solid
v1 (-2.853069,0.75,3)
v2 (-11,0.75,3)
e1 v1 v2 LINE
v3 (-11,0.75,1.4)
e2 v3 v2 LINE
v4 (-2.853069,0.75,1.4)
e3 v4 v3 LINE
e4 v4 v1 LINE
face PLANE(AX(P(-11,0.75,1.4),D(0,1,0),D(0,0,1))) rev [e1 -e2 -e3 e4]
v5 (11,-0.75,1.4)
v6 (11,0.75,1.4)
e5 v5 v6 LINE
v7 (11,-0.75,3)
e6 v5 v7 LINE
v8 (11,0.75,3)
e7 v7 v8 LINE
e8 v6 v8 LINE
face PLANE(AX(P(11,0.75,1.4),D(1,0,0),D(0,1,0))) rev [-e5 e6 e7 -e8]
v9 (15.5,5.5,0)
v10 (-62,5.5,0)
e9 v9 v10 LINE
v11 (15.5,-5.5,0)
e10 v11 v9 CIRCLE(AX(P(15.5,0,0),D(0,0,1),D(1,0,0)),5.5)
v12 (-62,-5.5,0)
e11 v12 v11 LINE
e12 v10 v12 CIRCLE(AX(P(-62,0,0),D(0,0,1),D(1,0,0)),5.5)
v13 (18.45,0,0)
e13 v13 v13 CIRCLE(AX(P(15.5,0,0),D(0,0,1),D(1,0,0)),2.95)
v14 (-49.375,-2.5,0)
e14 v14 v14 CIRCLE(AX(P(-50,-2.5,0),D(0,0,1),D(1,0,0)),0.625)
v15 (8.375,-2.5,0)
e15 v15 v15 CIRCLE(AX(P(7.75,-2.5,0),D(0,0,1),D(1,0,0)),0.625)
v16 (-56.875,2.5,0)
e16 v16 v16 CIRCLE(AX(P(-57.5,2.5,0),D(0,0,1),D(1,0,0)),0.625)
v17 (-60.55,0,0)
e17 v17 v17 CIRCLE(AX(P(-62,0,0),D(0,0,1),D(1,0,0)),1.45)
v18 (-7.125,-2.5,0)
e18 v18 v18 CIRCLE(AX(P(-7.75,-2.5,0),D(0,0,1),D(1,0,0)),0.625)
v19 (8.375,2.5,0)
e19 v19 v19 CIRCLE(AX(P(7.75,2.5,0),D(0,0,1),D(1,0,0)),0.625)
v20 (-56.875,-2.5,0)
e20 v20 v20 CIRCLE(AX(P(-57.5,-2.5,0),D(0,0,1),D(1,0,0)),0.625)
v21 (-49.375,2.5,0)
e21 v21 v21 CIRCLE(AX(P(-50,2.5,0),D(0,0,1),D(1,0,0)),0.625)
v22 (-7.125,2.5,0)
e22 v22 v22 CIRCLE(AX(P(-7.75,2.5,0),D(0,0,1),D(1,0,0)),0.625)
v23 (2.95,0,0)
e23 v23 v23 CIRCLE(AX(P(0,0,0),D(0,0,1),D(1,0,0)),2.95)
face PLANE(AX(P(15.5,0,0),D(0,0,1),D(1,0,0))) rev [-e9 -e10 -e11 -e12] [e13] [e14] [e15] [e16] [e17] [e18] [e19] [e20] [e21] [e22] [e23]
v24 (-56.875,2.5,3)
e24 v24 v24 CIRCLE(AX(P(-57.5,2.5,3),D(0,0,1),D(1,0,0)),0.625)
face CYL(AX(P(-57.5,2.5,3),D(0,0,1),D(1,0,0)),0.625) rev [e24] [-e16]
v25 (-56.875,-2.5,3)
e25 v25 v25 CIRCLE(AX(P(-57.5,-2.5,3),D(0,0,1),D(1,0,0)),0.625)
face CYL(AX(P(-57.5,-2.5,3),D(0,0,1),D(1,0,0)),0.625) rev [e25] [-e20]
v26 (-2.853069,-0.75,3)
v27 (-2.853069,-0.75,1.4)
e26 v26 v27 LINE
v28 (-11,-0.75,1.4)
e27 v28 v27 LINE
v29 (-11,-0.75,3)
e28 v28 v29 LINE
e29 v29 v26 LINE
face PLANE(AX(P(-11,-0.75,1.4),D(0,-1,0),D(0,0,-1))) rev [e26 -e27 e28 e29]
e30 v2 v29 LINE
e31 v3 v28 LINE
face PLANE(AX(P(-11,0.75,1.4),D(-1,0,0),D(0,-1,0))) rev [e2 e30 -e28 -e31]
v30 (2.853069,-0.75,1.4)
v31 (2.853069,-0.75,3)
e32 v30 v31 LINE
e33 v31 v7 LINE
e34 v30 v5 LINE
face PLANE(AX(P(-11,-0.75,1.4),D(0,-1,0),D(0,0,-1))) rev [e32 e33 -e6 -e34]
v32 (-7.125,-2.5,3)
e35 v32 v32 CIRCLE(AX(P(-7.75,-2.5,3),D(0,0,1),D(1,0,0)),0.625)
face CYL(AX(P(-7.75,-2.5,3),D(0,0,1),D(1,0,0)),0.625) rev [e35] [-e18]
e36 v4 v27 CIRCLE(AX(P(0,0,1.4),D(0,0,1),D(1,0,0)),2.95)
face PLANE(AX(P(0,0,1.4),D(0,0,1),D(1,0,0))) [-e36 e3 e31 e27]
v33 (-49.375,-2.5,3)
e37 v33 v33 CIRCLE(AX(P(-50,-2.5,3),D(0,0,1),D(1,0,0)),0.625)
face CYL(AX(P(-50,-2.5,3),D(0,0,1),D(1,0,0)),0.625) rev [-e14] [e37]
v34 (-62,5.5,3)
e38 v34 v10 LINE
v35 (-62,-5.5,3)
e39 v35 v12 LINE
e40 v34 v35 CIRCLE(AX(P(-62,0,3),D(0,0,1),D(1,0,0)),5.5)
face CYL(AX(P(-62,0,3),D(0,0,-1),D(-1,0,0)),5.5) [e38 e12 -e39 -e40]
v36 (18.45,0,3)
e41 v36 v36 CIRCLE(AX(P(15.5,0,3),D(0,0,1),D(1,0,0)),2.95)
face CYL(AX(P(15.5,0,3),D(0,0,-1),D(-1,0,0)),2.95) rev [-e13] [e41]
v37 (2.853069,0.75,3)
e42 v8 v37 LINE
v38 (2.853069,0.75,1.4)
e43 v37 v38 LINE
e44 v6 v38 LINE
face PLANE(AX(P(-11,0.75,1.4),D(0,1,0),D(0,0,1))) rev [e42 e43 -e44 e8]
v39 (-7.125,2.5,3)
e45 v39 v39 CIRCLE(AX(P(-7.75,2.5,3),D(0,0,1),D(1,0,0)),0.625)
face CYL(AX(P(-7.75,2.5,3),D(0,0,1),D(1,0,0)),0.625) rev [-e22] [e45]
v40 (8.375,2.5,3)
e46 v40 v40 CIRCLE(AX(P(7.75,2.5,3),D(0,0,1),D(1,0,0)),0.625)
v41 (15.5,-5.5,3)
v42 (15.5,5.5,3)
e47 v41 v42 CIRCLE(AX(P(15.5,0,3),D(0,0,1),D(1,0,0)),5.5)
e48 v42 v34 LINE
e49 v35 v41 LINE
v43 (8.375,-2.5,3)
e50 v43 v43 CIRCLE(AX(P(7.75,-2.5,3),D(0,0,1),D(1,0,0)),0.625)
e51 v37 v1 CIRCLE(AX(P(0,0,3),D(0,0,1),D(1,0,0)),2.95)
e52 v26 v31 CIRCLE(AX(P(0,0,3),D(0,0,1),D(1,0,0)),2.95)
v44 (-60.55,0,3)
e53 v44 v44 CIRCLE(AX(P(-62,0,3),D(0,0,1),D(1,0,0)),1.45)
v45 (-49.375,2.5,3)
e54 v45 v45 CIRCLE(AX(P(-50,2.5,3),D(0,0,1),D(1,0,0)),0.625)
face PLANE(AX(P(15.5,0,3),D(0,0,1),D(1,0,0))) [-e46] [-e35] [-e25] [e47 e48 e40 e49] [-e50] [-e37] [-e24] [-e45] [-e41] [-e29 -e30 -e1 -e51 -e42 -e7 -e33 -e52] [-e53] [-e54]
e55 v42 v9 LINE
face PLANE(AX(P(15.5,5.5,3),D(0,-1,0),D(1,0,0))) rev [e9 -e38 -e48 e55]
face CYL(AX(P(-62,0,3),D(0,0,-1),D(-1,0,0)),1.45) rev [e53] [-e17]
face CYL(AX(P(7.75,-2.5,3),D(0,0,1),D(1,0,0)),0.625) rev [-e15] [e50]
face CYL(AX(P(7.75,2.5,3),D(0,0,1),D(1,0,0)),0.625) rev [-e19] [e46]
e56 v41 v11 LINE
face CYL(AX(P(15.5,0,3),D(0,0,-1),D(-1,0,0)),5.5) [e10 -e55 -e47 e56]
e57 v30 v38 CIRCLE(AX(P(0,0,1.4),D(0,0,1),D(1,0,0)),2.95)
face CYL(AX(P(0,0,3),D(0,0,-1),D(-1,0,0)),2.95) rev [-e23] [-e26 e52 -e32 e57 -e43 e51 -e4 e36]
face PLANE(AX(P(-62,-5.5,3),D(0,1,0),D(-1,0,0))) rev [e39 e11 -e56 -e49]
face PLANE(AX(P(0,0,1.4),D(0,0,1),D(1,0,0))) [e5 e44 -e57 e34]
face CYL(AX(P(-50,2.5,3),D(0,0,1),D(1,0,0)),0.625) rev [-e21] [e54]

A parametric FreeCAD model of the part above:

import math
import FreeCAD as App
import Part
import Sketcher
from FreeCAD import Vector


def add_polygon(sketch, points):
    """Adds a closed chain of lines whose ends are joined by coincident constraints."""
    first, n = sketch.GeometryCount, len(points)
    for a, b in zip(points, points[1:] + points[:1]):
        sketch.addGeometry(Part.LineSegment(App.Vector(*a, 0), App.Vector(*b, 0)), False)
    for i in range(n):
        sketch.addConstraint(Sketcher.Constraint("Coincident", first + i, 2, first + (i + 1) % n, 1))

doc = App.newDocument("Part")
body = doc.addObject("PartDesign::Body", "Body")

# Sketch on XY plane
sketch1 = body.newObject("Sketcher::SketchObject", "Sketch")
sketch1.AttachmentSupport = (doc.getObject("XY_Plane"), [""])
sketch1.MapMode = "FlatFace"
sketch1.addGeometry([
    Part.LineSegment(Vector(15.5, 5.5, 0), Vector(-62, 5.5, 0)),  # 0
    Part.ArcOfCircle(Part.Circle(Vector(-62, 0, 0), Vector(0, 0, 1), 5.5), math.radians(90), math.radians(270)),  # 1
    Part.LineSegment(Vector(-62, -5.5, 0), Vector(15.5, -5.5, 0)),  # 2
    Part.ArcOfCircle(Part.Circle(Vector(15.5, 0, 0), Vector(0, 0, 1), 5.5), math.radians(-90), math.radians(90)),  # 3
    Part.Circle(Vector(-62, 0, 0), Vector(0, 0, 1), 1.4),  # 4
    Part.Circle(Vector(0, 0, 0), Vector(0, 0, 1), 3),  # 5
    Part.Circle(Vector(15.5, 0, 0), Vector(0, 0, 1), 3),  # 6
], False)
sketch1.addConstraint([
    Sketcher.Constraint("Tangent", 0, 2, 1, 1),
    Sketcher.Constraint("Tangent", 1, 2, 2, 1),
    Sketcher.Constraint("Tangent", 2, 2, 3, 1),
    Sketcher.Constraint("Tangent", 3, 2, 0, 1),
    Sketcher.Constraint("Horizontal", 0),
    Sketcher.Constraint("Horizontal", 2),
    Sketcher.Constraint("Coincident", 5, 3, -1, 1),
    Sketcher.Constraint("Coincident", 4, 3, 1, 3),
    Sketcher.Constraint("Coincident", 6, 3, 3, 3),
    Sketcher.Constraint("Equal", 5, 6),
    Sketcher.Constraint("PointOnObject", 1, 3, -1),
    Sketcher.Constraint("Diameter", 4, 2.9),
    Sketcher.Constraint("Diameter", 5, 5.9),
    Sketcher.Constraint("Radius", 1, 5.5),
    Sketcher.Constraint("DistanceX", 0, 2, 0, 1, 77.5),
    Sketcher.Constraint("DistanceX", 1, 3, -1, 1, 62.0),
])
pad1 = body.newObject("PartDesign::Pad", "Pad")
pad1.Profile = sketch1
pad1.Length = 3

# Sketch on XY plane
sketch2 = body.newObject("Sketcher::SketchObject", "Sketch001")
sketch2.AttachmentSupport = (doc.getObject("XY_Plane"), [""])
sketch2.MapMode = "FlatFace"
sketch2.AttachmentOffset = App.Placement(Vector(0, 0, 3), App.Rotation())
sketch2.addGeometry([
    Part.Circle(Vector(7.8, 2.5, 0), Vector(0, 0, 1), 0.6),
    Part.Circle(Vector(-7.8, 2.5, 0), Vector(0, 0, 1), 0.6),
    Part.Circle(Vector(-57.5, 2.5, 0), Vector(0, 0, 1), 0.6),
    Part.Circle(Vector(-50, 2.5, 0), Vector(0, 0, 1), 0.6),
], False)
sketch2.addConstraint([
    Sketcher.Constraint("Equal", 0, 1),
    Sketcher.Constraint("Equal", 1, 2),
    Sketcher.Constraint("Equal", 2, 3),
    Sketcher.Constraint("Symmetric", 0, 3, 1, 3, -2),
    Sketcher.Constraint("Horizontal", 1, 3, 2, 3),
    Sketcher.Constraint("Horizontal", 2, 3, 3, 3),
    Sketcher.Constraint("Diameter", 0, 1.25),
    Sketcher.Constraint("DistanceX", 3, 3, -1, 1, 50.0),
    Sketcher.Constraint("DistanceY", -1, 1, 0, 3, 2.5),
    Sketcher.Constraint("DistanceX", 2, 3, -1, 1, 57.5),
    Sketcher.Constraint("DistanceX", 1, 3, 0, 3, 15.5),
])
doc.recompute()
hole = body.newObject("PartDesign::Hole", "Hole")
hole.Profile = sketch2
hole.ThreadType = "None"
hole.Diameter = 1.25
hole.DepthType = "ThroughAll"
doc.recompute()

mirrored = body.newObject("PartDesign::Mirrored", "Mirrored")
mirrored.Originals = [hole]
mirrored.MirrorPlane = (doc.getObject("XZ_Plane"), [""])
body.Tip = mirrored

# Sketch on XY plane
sketch3 = body.newObject("Sketcher::SketchObject", "Sketch002")
sketch3.AttachmentSupport = (doc.getObject("XY_Plane"), [""])
sketch3.MapMode = "FlatFace"
sketch3.AttachmentOffset = App.Placement(Vector(0, 0, 3), App.Rotation())
add_polygon(sketch3, [(-11, 0.8), (-11, -0.8), (11, -0.8), (11, 0.8)])  # lines 0-3
sketch3.addConstraint([
    Sketcher.Constraint("Vertical", 0),
    Sketcher.Constraint("Horizontal", 1),
    Sketcher.Constraint("Vertical", 2),
    Sketcher.Constraint("Horizontal", 3),
    Sketcher.Constraint("Symmetric", 0, 2, 2, 2, -1, 1),
    Sketcher.Constraint("DistanceX", 1, 1, 1, 2, 22.0),
    Sketcher.Constraint("DistanceY", 0, 2, 0, 1, 1.5),
])
pocket1 = body.newObject("PartDesign::Pocket", "Pocket")
pocket1.Profile = sketch3
pocket1.Length = 1.6

doc.recompute()
